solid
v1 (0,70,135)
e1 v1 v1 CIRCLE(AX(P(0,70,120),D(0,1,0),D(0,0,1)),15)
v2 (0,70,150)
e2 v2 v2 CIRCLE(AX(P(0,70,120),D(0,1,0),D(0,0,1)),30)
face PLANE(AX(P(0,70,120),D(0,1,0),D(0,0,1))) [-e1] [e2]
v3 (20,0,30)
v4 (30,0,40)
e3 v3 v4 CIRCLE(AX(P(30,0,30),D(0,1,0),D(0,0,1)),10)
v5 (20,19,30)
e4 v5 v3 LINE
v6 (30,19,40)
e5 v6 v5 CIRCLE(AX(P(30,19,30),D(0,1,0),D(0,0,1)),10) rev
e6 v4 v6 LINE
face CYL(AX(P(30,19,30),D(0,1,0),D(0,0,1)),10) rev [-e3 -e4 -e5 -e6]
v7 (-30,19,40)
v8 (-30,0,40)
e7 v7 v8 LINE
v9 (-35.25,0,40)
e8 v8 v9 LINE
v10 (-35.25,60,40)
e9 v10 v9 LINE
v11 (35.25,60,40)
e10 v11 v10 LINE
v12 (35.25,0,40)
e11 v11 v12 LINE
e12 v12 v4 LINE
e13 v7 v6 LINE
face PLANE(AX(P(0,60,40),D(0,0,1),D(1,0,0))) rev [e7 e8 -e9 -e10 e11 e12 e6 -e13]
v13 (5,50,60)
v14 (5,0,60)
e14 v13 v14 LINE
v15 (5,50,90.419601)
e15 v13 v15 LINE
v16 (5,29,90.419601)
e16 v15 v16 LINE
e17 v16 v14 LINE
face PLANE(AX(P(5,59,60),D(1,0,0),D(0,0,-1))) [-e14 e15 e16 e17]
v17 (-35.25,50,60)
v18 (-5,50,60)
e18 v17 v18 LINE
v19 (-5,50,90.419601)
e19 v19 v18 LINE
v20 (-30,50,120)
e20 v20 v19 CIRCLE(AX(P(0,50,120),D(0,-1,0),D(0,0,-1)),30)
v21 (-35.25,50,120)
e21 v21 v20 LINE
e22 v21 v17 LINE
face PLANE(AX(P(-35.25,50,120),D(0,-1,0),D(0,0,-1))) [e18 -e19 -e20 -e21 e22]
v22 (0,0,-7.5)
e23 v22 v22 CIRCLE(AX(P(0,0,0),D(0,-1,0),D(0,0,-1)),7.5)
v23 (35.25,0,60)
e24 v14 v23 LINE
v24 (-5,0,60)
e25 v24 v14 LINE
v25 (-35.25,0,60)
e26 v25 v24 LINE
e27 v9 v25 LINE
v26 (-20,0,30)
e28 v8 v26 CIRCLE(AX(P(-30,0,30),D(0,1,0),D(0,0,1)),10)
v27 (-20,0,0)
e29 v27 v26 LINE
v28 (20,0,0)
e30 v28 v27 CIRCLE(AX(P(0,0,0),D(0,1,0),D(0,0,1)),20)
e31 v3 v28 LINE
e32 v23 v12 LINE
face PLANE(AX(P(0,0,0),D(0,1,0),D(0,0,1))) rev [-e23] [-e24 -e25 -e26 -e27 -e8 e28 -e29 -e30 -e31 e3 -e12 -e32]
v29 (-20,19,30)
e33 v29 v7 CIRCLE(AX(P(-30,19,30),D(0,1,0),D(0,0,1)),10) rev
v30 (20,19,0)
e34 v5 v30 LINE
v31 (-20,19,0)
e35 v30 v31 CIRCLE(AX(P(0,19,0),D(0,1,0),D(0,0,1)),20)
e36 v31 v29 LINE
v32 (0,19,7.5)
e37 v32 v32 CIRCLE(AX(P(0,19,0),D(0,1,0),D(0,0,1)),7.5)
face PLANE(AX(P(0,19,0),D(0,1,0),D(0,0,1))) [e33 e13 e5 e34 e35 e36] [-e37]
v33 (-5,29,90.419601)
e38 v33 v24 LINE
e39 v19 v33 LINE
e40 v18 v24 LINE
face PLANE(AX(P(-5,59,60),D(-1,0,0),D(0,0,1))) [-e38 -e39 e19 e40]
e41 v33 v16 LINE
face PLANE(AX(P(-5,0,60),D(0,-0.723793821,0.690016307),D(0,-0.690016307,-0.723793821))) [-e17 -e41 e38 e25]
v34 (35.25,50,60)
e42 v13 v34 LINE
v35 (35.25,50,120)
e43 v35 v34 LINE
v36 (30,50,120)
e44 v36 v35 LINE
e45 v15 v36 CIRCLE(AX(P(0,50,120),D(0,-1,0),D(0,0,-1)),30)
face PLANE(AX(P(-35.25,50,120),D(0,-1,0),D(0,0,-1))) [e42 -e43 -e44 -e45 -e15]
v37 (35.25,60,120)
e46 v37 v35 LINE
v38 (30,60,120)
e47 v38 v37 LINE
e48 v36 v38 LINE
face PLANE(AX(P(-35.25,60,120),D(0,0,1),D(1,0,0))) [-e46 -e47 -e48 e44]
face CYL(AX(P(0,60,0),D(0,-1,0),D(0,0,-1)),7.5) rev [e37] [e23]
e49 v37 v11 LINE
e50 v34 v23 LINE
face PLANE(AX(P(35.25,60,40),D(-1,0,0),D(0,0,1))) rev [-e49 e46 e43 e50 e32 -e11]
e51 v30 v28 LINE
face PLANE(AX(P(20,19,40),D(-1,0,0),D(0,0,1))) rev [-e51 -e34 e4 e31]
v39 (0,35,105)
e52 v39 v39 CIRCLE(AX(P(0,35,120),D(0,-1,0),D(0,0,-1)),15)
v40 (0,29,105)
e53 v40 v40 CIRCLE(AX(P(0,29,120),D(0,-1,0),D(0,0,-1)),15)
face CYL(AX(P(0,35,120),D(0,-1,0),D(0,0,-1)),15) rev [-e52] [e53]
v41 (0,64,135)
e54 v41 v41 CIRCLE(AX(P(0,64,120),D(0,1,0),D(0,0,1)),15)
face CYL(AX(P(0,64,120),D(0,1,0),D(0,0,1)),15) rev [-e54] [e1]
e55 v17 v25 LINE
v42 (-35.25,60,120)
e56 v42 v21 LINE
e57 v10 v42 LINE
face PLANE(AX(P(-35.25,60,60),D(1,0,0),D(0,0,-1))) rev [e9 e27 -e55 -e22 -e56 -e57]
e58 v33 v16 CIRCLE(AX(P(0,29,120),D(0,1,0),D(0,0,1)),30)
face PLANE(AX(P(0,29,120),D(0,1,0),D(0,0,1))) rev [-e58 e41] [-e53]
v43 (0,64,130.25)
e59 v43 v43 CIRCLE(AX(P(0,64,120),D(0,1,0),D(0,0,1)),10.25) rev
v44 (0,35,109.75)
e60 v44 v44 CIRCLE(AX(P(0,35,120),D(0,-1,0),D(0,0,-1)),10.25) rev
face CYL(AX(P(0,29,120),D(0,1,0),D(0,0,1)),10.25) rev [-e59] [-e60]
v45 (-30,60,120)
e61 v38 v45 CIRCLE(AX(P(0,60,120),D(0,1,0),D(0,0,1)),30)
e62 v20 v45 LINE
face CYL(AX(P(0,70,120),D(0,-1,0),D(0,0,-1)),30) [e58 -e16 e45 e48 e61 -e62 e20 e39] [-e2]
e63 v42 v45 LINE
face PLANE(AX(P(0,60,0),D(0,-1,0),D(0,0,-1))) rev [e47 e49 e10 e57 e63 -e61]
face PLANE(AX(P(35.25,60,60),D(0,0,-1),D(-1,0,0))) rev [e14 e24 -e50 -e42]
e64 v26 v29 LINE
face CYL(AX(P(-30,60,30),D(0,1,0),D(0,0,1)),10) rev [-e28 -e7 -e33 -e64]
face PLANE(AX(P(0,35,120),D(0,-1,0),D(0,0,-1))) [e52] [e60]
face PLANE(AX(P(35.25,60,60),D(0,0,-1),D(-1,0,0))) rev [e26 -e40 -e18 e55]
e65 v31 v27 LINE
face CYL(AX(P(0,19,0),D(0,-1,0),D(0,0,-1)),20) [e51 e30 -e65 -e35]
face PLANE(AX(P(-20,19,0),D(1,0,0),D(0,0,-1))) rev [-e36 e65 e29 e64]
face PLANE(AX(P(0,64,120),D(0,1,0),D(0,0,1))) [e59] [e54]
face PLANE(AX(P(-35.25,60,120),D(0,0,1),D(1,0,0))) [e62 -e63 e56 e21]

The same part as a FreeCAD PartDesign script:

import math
import FreeCAD as App
import Part
import Sketcher

V = App.Vector


def edges_at(feature, points):
    """Names of the edges that pass closest to the given points."""
    edges = feature.Shape.Edges
    near = lambda p: min(range(len(edges)), key=lambda i: edges[i].distToShape(Part.Vertex(*p))[0])
    return sorted({f"Edge{near(p) + 1}" for p in points})


def add_polygon(sketch, points):
    """Adds a closed chain of lines whose ends are joined by coincident constraints."""
    first, n = sketch.GeometryCount, len(points)
    for a, b in zip(points, points[1:] + points[:1]):
        sketch.addGeometry(Part.LineSegment(App.Vector(*a, 0), App.Vector(*b, 0)), False)
    for i in range(n):
        sketch.addConstraint(Sketcher.Constraint("Coincident", first + i, 2, first + (i + 1) % n, 1))

doc = App.newDocument("Part")
body = doc.addObject("PartDesign::Body", "Body")

sketch1 = doc.addObject("Sketcher::SketchObject", "Sketch")
body.addObject(sketch1)
sketch1.AttachmentSupport = (doc.XZ_Plane, [""])
sketch1.MapMode = "FlatFace"
sketch1.addGeometry(Part.LineSegment(V(-20, 0, 0), V(-20, 40, 0)), False)
sketch1.addGeometry(Part.LineSegment(V(-20, 40, 0), V(20, 40, 0)), False)
sketch1.addGeometry(Part.LineSegment(V(20, 40, 0), V(20, 0, 0)), False)
sketch1.addGeometry(Part.ArcOfCircle(Part.Circle(V(0, 0, 0), V(0, 0, 1), 20), math.radians(180), math.radians(360)), False)
sketch1.addConstraint(Sketcher.Constraint("Coincident", 0, 2, 1, 1))
sketch1.addConstraint(Sketcher.Constraint("Coincident", 1, 2, 2, 1))
sketch1.addConstraint(Sketcher.Constraint("Tangent", 2, 2, 3, 2))
sketch1.addConstraint(Sketcher.Constraint("Tangent", 3, 1, 0, 1))
sketch1.addConstraint(Sketcher.Constraint("Vertical", 0))
sketch1.addConstraint(Sketcher.Constraint("Horizontal", 1))
sketch1.addConstraint(Sketcher.Constraint("Vertical", 2))
sketch1.addConstraint(Sketcher.Constraint("Coincident", 3, 3, -1, 1))
sketch1.addConstraint(Sketcher.Constraint("Equal", 1, 0))
sketch1.addConstraint(Sketcher.Constraint("Radius", 3, 20.0))
pad1 = doc.addObject("PartDesign::Pad", "Pad")
body.addObject(pad1)
pad1.Profile = sketch1
pad1.Length = 19
pad1.Reversed = True

sketch2 = doc.addObject("Sketcher::SketchObject", "Sketch001")
body.addObject(sketch2)
sketch2.AttachmentSupport = (doc.XZ_Plane, [""])
sketch2.MapMode = "FlatFace"
add_polygon(sketch2, [(35.25, 40), (-35.25, 40), (-35.25, 60), (35.25, 60)])
sketch2.addConstraint(Sketcher.Constraint("Horizontal", 0))
sketch2.addConstraint(Sketcher.Constraint("Vertical", 1))
sketch2.addConstraint(Sketcher.Constraint("Horizontal", 2))
sketch2.addConstraint(Sketcher.Constraint("Vertical", 3))
sketch2.addConstraint(Sketcher.Constraint("DistanceY", 1, 1, 1, 2, 20.0))
sketch2.addConstraint(Sketcher.Constraint("DistanceX", 0, 2, 0, 1, 70.5))
sketch2.addConstraint(Sketcher.Constraint("DistanceY", -1, 1, 0, 2, 40.0))
sketch2.addConstraint(Sketcher.Constraint("DistanceX", 0, 2, -1, 1, 35.25))
pad2 = doc.addObject("PartDesign::Pad", "Pad001")
body.addObject(pad2)
pad2.Profile = sketch2
pad2.Length = 60
pad2.Reversed = True
doc.recompute()

fillet = doc.addObject("PartDesign::Fillet", "Fillet")
body.addObject(fillet)
fillet.Base = (pad2, edges_at(pad2, [(20, 9.5, 40)]))
fillet.Radius = 10
doc.recompute()

fillet2 = doc.addObject("PartDesign::Fillet", "Fillet001")
body.addObject(fillet2)
fillet2.Base = (fillet, edges_at(fillet, [(-20, 9.5, 40)]))
fillet2.Radius = 10

sketch3 = doc.addObject("Sketcher::SketchObject", "Sketch002")
body.addObject(sketch3)
sketch3.AttachmentSupport = (doc.XZ_Plane, [""])
sketch3.MapMode = "FlatFace"
sketch3.addGeometry(Part.Circle(V(0, 0, 0), V(0, 0, 1), 7.5), False)
sketch3.addConstraint(Sketcher.Constraint("Coincident", 0, 3, -1, 1))
sketch3.addConstraint(Sketcher.Constraint("Diameter", 0, 15.0))
pocket1 = doc.addObject("PartDesign::Pocket", "Pocket")
body.addObject(pocket1)
pocket1.Profile = sketch3
pocket1.Length = 60

sketch4 = doc.addObject("Sketcher::SketchObject", "Sketch003")
body.addObject(sketch4)
sketch4.AttachmentSupport = (doc.YZ_Plane, [""])
sketch4.MapMode = "FlatFace"
sketch4.AttachmentOffset = App.Placement(V(0, 0, 35.25), App.Rotation())
add_polygon(sketch4, [(60, 120), (50, 120), (50, 60), (60, 60)])
sketch4.addConstraint(Sketcher.Constraint("Horizontal", 0))
sketch4.addConstraint(Sketcher.Constraint("Vertical", 1))
sketch4.addConstraint(Sketcher.Constraint("Horizontal", 2))
sketch4.addConstraint(Sketcher.Constraint("Vertical", 3))
sketch4.addConstraint(Sketcher.Constraint("DistanceX", 0, 2, 0, 1, 10.0))
sketch4.addConstraint(Sketcher.Constraint("DistanceY", 1, 2, 1, 1, 60.0))
sketch4.addConstraint(Sketcher.Constraint("DistanceX", -1, 1, 0, 2, 50.0))
sketch4.addConstraint(Sketcher.Constraint("DistanceY", -1, 1, 0, 2, 120.0))
pad3 = doc.addObject("PartDesign::Pad", "Pad002")
body.addObject(pad3)
pad3.Profile = sketch4
pad3.Length = 70.5
pad3.Reversed = True

sketch5 = doc.addObject("Sketcher::SketchObject", "Sketch004")
body.addObject(sketch5)
sketch5.AttachmentSupport = (doc.XZ_Plane, [""])
sketch5.MapMode = "FlatFace"
sketch5.AttachmentOffset = App.Placement(V(0, 0, -60), App.Rotation())
sketch5.addGeometry(Part.LineSegment(V(-30, 120, 0), V(30, 120, 0)), False)
sketch5.addGeometry(Part.ArcOfCircle(Part.Circle(V(0, 120, 0), V(0, 0, 1), 30), math.radians(180), math.radians(360)), False)
sketch5.addConstraint(Sketcher.Constraint("Coincident", 0, 1, 1, 1))
sketch5.addConstraint(Sketcher.Constraint("Coincident", 1, 2, 0, 2))
sketch5.addConstraint(Sketcher.Constraint("Horizontal", 0))
sketch5.addConstraint(Sketcher.Constraint("PointOnObject", 1, 3, -2))
sketch5.addConstraint(Sketcher.Constraint("Horizontal", 1, 3, 0, 1))
sketch5.addConstraint(Sketcher.Constraint("Radius", 1, 30.0))
sketch5.addConstraint(Sketcher.Constraint("DistanceY", -1, 1, 1, 3, 120.0))
pocket2 = doc.addObject("PartDesign::Pocket", "Pocket001")
body.addObject(pocket2)
pocket2.Profile = sketch5
pocket2.Length = 70.5
pocket2.Reversed = True

sketch6 = doc.addObject("Sketcher::SketchObject", "Sketch005")
body.addObject(sketch6)
sketch6.AttachmentSupport = (doc.XZ_Plane, [""])
sketch6.MapMode = "FlatFace"
sketch6.AttachmentOffset = App.Placement(V(0, 0, -60), App.Rotation())
sketch6.addGeometry(Part.Circle(V(0, 120, 0), V(0, 0, 1), 30), False)
sketch6.addConstraint(Sketcher.Constraint("PointOnObject", 0, 3, -2))
sketch6.addConstraint(Sketcher.Constraint("Diameter", 0, 60.0))
sketch6.addConstraint(Sketcher.Constraint("DistanceY", -1, 1, 0, 3, 120.0))
pad4 = doc.addObject("PartDesign::Pad", "Pad003")
body.addObject(pad4)
pad4.Profile = sketch6
pad4.Type = "TwoLengths"
pad4.Length = 10
pad4.Length2 = 31
pad4.Reversed = True

sketch7 = doc.addObject("Sketcher::SketchObject", "Sketch006")
body.addObject(sketch7)
sketch7.AttachmentSupport = (doc.XZ_Plane, [""])
sketch7.MapMode = "FlatFace"
sketch7.AttachmentOffset = App.Placement(V(0, 0, -70), App.Rotation())
sketch7.addGeometry(Part.Circle(V(0, 120, 0), V(0, 0, 1), 10.25), False)
sketch7.addConstraint(Sketcher.Constraint("PointOnObject", 0, 3, -2))
sketch7.addConstraint(Sketcher.Constraint("Diameter", 0, 20.5))
sketch7.addConstraint(Sketcher.Constraint("DistanceY", -1, 1, 0, 3, 120.0))
pocket3 = doc.addObject("PartDesign::Pocket", "Pocket002")
body.addObject(pocket3)
pocket3.Profile = sketch7
pocket3.Length = 41
pocket3.Reversed = True

sketch8 = doc.addObject("Sketcher::SketchObject", "Sketch007")
body.addObject(sketch8)
sketch8.AttachmentSupport = (doc.XZ_Plane, [""])
sketch8.MapMode = "FlatFace"
sketch8.AttachmentOffset = App.Placement(V(0, 0, -70), App.Rotation())
sketch8.addGeometry(Part.Circle(V(0, 120, 0), V(0, 0, 1), 15), False)
sketch8.addConstraint(Sketcher.Constraint("PointOnObject", 0, 3, -2))
sketch8.addConstraint(Sketcher.Constraint("Diameter", 0, 30.0))
sketch8.addConstraint(Sketcher.Constraint("DistanceY", -1, 1, 0, 3, 120.0))
pocket4 = doc.addObject("PartDesign::Pocket", "Pocket003")
body.addObject(pocket4)
pocket4.Profile = sketch8
pocket4.Length = 6
pocket4.Reversed = True

sketch9 = doc.addObject("Sketcher::SketchObject", "Sketch008")
body.addObject(sketch9)
sketch9.AttachmentSupport = (doc.XZ_Plane, [""])
sketch9.MapMode = "FlatFace"
sketch9.AttachmentOffset = App.Placement(V(0, 0, -35), App.Rotation())
sketch9.addGeometry(Part.Circle(V(0, 120, 0), V(0, 0, 1), 15), False)
sketch9.addConstraint(Sketcher.Constraint("PointOnObject", 0, 3, -2))
sketch9.addConstraint(Sketcher.Constraint("Diameter", 0, 30.0))
sketch9.addConstraint(Sketcher.Constraint("DistanceY", -1, 1, 0, 3, 120.0))
pocket5 = doc.addObject("PartDesign::Pocket", "Pocket004")
body.addObject(pocket5)
pocket5.Profile = sketch9
pocket5.Length = 6
pocket5.Reversed = True

sketch10 = doc.addObject("Sketcher::SketchObject", "Sketch009")
body.addObject(sketch10)
sketch10.AttachmentSupport = (doc.XZ_Plane, [""])
sketch10.MapMode = "FlatFace"
sketch10.AttachmentOffset = App.Placement(V(0, 0, -29), App.Rotation())
add_polygon(sketch10, [(-5, 90.419601), (-5, 60), (5, 60), (5, 90.419601)])
sketch10.addConstraint(Sketcher.Constraint("Vertical", 0))
sketch10.addConstraint(Sketcher.Constraint("Horizontal", 1))
sketch10.addConstraint(Sketcher.Constraint("Vertical", 2))
sketch10.addConstraint(Sketcher.Constraint("Horizontal", 3))
sketch10.addConstraint(Sketcher.Constraint("DistanceX", 1, 1, 1, 2, 10.0))
sketch10.addConstraint(Sketcher.Constraint("DistanceX", 0, 2, -1, 1, 5.0))
sketch10.addConstraint(Sketcher.Constraint("DistanceY", -1, 1, 0, 2, 60.0))
sketch10.addConstraint(Sketcher.Constraint("DistanceY", 0, 2, 0, 1, 30.419601))
pad5 = doc.addObject("PartDesign::Pad", "Pad004")
body.addObject(pad5)
pad5.Profile = sketch10
pad5.Length = 30
pad5.Reversed = True

sketch11 = doc.addObject("Sketcher::SketchObject", "Sketch010")
body.addObject(sketch11)
sketch11.AttachmentSupport = (doc.YZ_Plane, [""])
sketch11.MapMode = "FlatFace"
sketch11.AttachmentOffset = App.Placement(V(0, 0, 5), App.Rotation())
add_polygon(sketch11, [(29, 60), (29, 90.419601), (0, 60)])
sketch11.addConstraint(Sketcher.Constraint("Vertical", 0))
sketch11.addConstraint(Sketcher.Constraint("Horizontal", 2))
sketch11.addConstraint(Sketcher.Constraint("PointOnObject", 1, 2, -2))
sketch11.addConstraint(Sketcher.Constraint("DistanceX", 2, 1, 2, 2, 29.0))
sketch11.addConstraint(Sketcher.Constraint("DistanceY", -1, 1, 1, 2, 60.0))
sketch11.addConstraint(Sketcher.Constraint("DistanceY", 0, 1, 0, 2, 30.419601))
pad6 = doc.addObject("PartDesign::Pad", "Pad005")
body.addObject(pad6)
pad6.Profile = sketch11
pad6.Length = 10
pad6.Reversed = True

doc.recompute()
